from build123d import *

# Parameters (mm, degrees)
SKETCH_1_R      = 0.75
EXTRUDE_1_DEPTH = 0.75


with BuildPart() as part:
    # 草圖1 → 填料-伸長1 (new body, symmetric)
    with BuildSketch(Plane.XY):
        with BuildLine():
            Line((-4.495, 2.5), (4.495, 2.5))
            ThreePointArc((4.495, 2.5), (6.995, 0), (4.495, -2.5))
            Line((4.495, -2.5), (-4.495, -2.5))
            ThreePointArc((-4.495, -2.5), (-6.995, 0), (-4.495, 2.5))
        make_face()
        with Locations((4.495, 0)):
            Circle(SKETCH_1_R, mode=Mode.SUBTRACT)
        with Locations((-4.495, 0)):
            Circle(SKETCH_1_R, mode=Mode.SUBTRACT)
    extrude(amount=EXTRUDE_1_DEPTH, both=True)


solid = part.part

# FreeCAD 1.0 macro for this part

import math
import FreeCAD as App
import Part
import Sketcher
Q = App.Units.Quantity

doc = App.newDocument("Part")
body = doc.addObject("PartDesign::Body", "Body")

# Sketch on XY plane
sketch1 = body.newObject("Sketcher::SketchObject", "Sketch")
sketch1.AttachmentSupport = (doc.getObject("XY_Plane"), [""])
sketch1.MapMode = "FlatFace"
sketch1.addGeometry([
    Part.LineSegment(App.Vector(4.5, 2.5, 0), App.Vector(-4.5, 2.5, 0)),  # 0
    Part.ArcOfCircle(Part.Circle(App.Vector(-4.5, 0, 0), App.Vector(0, 0, 1), 2.5), math.radians(90), math.radians(270)),  # 1
    Part.LineSegment(App.Vector(-4.5, -2.5, 0), App.Vector(4.5, -2.5, 0)),  # 2
    Part.ArcOfCircle(Part.Circle(App.Vector(4.5, 0, 0), App.Vector(0, 0, 1), 2.5), math.radians(-90), math.radians(90)),  # 3
    Part.Circle(App.Vector(4.5, 0, 0), App.Vector(0, 0, 1), 0.8),  # 4
    Part.Circle(App.Vector(-4.5, 0, 0), App.Vector(0, 0, 1), 0.8),  # 5
], False)
sketch1.addConstraint([
    Sketcher.Constraint("Tangent", 0, 2, 1, 1),
    Sketcher.Constraint("Tangent", 1, 2, 2, 1),
    Sketcher.Constraint("Tangent", 2, 2, 3, 1),
    Sketcher.Constraint("Tangent", 3, 2, 0, 1),
    Sketcher.Constraint("Horizontal", 0),
    Sketcher.Constraint("Horizontal", 2),
    Sketcher.Constraint("Coincident", 4, 3, 3, 3),
    Sketcher.Constraint("Coincident", 5, 3, 1, 3),
    Sketcher.Constraint("Equal", 4, 5),
    Sketcher.Constraint("Symmetric", 1, 3, 3, 3, -1, 1),
    Sketcher.Constraint("Diameter", 4, Q("1.5 mm")),
    Sketcher.Constraint("Radius", 1, Q("2.5 mm")),
    Sketcher.Constraint("DistanceX", 0, 2, 0, 1, Q("8.99 mm")),
])
pad1 = body.newObject("PartDesign::Pad", "Pad")
pad1.Profile = sketch1
pad1.Length = 1.5
pad1.Midplane = True

doc.recompute()
